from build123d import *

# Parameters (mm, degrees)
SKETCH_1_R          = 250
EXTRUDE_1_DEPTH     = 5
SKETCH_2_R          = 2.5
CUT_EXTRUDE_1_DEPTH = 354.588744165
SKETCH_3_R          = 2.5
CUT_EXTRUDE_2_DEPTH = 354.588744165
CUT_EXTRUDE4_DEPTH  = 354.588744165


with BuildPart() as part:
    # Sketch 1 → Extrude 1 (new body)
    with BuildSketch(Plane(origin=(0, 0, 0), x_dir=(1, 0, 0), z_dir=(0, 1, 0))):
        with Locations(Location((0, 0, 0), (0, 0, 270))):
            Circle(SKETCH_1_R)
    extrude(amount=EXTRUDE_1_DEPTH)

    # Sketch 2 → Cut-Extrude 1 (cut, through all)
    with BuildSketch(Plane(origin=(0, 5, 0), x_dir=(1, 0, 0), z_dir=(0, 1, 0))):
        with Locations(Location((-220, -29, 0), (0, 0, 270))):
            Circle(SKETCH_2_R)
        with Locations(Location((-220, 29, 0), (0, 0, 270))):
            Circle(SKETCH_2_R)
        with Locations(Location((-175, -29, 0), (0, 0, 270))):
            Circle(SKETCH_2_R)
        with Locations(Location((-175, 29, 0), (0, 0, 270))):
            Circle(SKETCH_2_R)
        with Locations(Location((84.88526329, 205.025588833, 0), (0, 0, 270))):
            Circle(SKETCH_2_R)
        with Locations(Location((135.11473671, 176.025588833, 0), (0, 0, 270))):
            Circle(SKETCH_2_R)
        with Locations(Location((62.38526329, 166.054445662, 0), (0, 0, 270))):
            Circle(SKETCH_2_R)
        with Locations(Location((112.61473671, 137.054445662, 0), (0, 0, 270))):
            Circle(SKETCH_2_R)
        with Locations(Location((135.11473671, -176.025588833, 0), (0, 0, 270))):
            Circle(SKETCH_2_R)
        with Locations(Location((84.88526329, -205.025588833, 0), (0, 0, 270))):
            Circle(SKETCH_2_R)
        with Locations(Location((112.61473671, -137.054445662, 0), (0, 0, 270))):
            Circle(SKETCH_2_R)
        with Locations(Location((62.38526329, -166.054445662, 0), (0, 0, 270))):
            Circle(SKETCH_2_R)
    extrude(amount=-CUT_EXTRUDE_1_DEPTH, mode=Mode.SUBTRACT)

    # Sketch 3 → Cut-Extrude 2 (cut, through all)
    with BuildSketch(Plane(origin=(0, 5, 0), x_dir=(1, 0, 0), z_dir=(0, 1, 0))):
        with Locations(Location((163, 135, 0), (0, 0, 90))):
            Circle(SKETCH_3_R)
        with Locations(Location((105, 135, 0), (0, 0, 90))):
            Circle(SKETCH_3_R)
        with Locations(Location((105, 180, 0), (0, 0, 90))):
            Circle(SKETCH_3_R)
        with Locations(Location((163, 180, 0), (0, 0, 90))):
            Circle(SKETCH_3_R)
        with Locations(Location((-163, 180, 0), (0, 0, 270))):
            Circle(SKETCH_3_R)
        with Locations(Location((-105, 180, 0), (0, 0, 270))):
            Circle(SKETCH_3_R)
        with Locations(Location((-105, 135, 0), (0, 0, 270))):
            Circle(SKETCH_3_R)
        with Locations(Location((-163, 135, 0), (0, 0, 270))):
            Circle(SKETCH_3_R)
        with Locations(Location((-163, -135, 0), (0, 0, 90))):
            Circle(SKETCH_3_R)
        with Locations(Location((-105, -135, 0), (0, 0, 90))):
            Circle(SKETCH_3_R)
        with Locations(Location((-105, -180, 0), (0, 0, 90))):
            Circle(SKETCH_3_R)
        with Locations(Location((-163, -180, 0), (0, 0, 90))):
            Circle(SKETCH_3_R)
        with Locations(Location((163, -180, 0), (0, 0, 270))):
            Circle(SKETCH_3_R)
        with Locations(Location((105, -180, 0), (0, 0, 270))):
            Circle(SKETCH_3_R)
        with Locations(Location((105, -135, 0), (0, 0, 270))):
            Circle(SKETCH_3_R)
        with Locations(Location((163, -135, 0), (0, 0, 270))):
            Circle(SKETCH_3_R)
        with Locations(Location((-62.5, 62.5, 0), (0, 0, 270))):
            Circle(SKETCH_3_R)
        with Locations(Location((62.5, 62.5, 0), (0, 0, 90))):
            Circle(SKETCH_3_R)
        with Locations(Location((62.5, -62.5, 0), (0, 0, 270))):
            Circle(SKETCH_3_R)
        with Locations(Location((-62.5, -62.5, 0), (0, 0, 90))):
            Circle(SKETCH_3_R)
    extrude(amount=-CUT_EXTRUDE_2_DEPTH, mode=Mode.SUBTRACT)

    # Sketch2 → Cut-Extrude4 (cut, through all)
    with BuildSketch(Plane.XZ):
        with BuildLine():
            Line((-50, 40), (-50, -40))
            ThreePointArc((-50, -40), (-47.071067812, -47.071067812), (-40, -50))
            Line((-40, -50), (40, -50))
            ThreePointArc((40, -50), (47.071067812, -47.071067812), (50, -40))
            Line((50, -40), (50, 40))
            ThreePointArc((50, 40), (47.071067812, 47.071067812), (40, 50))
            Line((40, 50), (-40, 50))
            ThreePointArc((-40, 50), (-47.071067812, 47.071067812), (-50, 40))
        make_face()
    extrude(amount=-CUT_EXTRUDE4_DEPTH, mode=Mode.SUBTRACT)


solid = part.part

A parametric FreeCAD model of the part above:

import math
import FreeCAD as App
import Part
import Sketcher

V = App.Vector

doc = App.newDocument("Part")
params = doc.addObject("Spreadsheet::Sheet", "Params")
for row, (alias, value) in enumerate([
    ("sketch1_diameter", "500 mm"),
    ("pad1_length", "5 mm"),
    ("sketch2_diameter", "5 mm"),
    ("sketch3_diameter", "5 mm"),
    ("sketch4_radius", "10 mm"),
    ("sketch4_width", "80 mm"),
], start=1):
    params.set(f"A{row}", alias)
    params.set(f"B{row}", "=" + value)
    params.setAlias(f"B{row}", alias)

body = doc.addObject("PartDesign::Body", "Body")

sketch1 = body.newObject("Sketcher::SketchObject", "Sketch")
sketch1.AttachmentSupport = (doc.getObject("XZ_Plane"), [""])
sketch1.MapMode = "FlatFace"
sketch1.addGeometry(Part.Circle(V(0, 0, 0), V(0, 0, 1), 250), False)
sketch1.addConstraint(Sketcher.Constraint("Coincident", 0, 3, -1, 1))
sketch1.addConstraint(Sketcher.Constraint("Diameter", 0, 500.0))
sketch1.setExpression("Constraints[1]", "Params.sketch1_diameter")
pad1 = body.newObject("PartDesign::Pad", "Pad")
pad1.Profile = sketch1
pad1.setExpression("Length", "Params.pad1_length")
pad1.Reversed = True

sketch2 = body.newObject("Sketcher::SketchObject", "Sketch001")
sketch2.AttachmentSupport = (doc.getObject("XZ_Plane"), [""])
sketch2.MapMode = "FlatFace"
sketch2.AttachmentOffset = App.Placement(V(0, 0, -5), App.Rotation())
sketch2.addGeometry(Part.Circle(V(-220, 29, 0), V(0, 0, 1), 2.5), False)
sketch2.addGeometry(Part.Circle(V(-220, -29, 0), V(0, 0, 1), 2.5), False)
sketch2.addGeometry(Part.Circle(V(-175, 29, 0), V(0, 0, 1), 2.5), False)
sketch2.addGeometry(Part.Circle(V(-175, -29, 0), V(0, 0, 1), 2.5), False)
sketch2.addGeometry(Part.Circle(V(84.885263, -205.025589, 0), V(0, 0, 1), 2.5), False)
sketch2.addGeometry(Part.Circle(V(135.114737, -176.025589, 0), V(0, 0, 1), 2.5), False)
sketch2.addGeometry(Part.Circle(V(62.385263, -166.054446, 0), V(0, 0, 1), 2.5), False)
sketch2.addGeometry(Part.Circle(V(112.614737, -137.054446, 0), V(0, 0, 1), 2.5), False)
sketch2.addGeometry(Part.Circle(V(135.114737, 176.025589, 0), V(0, 0, 1), 2.5), False)
sketch2.addGeometry(Part.Circle(V(84.885263, 205.025589, 0), V(0, 0, 1), 2.5), False)
sketch2.addGeometry(Part.Circle(V(112.614737, 137.054446, 0), V(0, 0, 1), 2.5), False)
sketch2.addGeometry(Part.Circle(V(62.385263, 166.054446, 0), V(0, 0, 1), 2.5), False)
sketch2.addConstraint(Sketcher.Constraint("Equal", 0, 1))
sketch2.addConstraint(Sketcher.Constraint("Equal", 1, 2))
sketch2.addConstraint(Sketcher.Constraint("Equal", 2, 3))
sketch2.addConstraint(Sketcher.Constraint("Equal", 3, 4))
sketch2.addConstraint(Sketcher.Constraint("Equal", 4, 5))
sketch2.addConstraint(Sketcher.Constraint("Equal", 5, 6))
sketch2.addConstraint(Sketcher.Constraint("Equal", 6, 7))
sketch2.addConstraint(Sketcher.Constraint("Equal", 7, 8))
sketch2.addConstraint(Sketcher.Constraint("Equal", 8, 9))
sketch2.addConstraint(Sketcher.Constraint("Equal", 9, 10))
sketch2.addConstraint(Sketcher.Constraint("Equal", 10, 11))
sketch2.addConstraint(Sketcher.Constraint("Symmetric", 0, 3, 1, 3, -1))
sketch2.addConstraint(Sketcher.Constraint("Symmetric", 2, 3, 3, 3, -1))
sketch2.addConstraint(Sketcher.Constraint("Symmetric", 5, 3, 8, 3, -1))
sketch2.addConstraint(Sketcher.Constraint("Symmetric", 4, 3, 9, 3, -1))
sketch2.addConstraint(Sketcher.Constraint("Symmetric", 7, 3, 10, 3, -1))
sketch2.addConstraint(Sketcher.Constraint("Symmetric", 6, 3, 11, 3, -1))
sketch2.addConstraint(Sketcher.Constraint("Horizontal", 0, 3, 2, 3))
sketch2.addConstraint(Sketcher.Constraint("Diameter", 0, 5.0))
sketch2.addConstraint(Sketcher.Constraint("DistanceX", 0, 3, -1, 1, 220.0))
sketch2.addConstraint(Sketcher.Constraint("DistanceY", -1, 1, 0, 3, 29.0))
sketch2.addConstraint(Sketcher.Constraint("DistanceX", 2, 3, -1, 1, 175.0))
sketch2.addConstraint(Sketcher.Constraint("DistanceY", 4, 3, 5, 3, 29.0))
sketch2.addConstraint(Sketcher.Constraint("DistanceY", 6, 3, 7, 3, 29.0))
sketch2.addConstraint(Sketcher.Constraint("DistanceX", 6, 3, 4, 3, 22.5))
sketch2.addConstraint(Sketcher.Constraint("DistanceX", 7, 3, 5, 3, 22.5))
sketch2.addConstraint(Sketcher.Constraint("DistanceY", 4, 3, -1, 1, 205.025589))
sketch2.addConstraint(Sketcher.Constraint("DistanceY", 7, 3, 10, 3, 274.108891))
sketch2.addConstraint(Sketcher.Constraint("DistanceX", -1, 1, 4, 3, 84.885263))
sketch2.addConstraint(Sketcher.Constraint("DistanceX", -1, 1, 5, 3, 135.114737))
sketch2.setExpression("Constraints[18]", "Params.sketch2_diameter")
pocket1 = body.newObject("PartDesign::Pocket", "Pocket")
pocket1.Profile = sketch2
pocket1.Type = "ThroughAll"
pocket1.Reversed = True

sketch3 = body.newObject("Sketcher::SketchObject", "Sketch002")
sketch3.AttachmentSupport = (doc.getObject("XZ_Plane"), [""])
sketch3.MapMode = "FlatFace"
sketch3.AttachmentOffset = App.Placement(V(0, 0, -5), App.Rotation())
sketch3.addGeometry(Part.Circle(V(163, -135, 0), V(0, 0, 1), 2.5), False)
sketch3.addGeometry(Part.Circle(V(105, -135, 0), V(0, 0, 1), 2.5), False)
sketch3.addGeometry(Part.Circle(V(105, -180, 0), V(0, 0, 1), 2.5), False)
sketch3.addGeometry(Part.Circle(V(163, -180, 0), V(0, 0, 1), 2.5), False)
sketch3.addGeometry(Part.Circle(V(-163, -180, 0), V(0, 0, 1), 2.5), False)
sketch3.addGeometry(Part.Circle(V(-105, -180, 0), V(0, 0, 1), 2.5), False)
sketch3.addGeometry(Part.Circle(V(-105, -135, 0), V(0, 0, 1), 2.5), False)
sketch3.addGeometry(Part.Circle(V(-163, -135, 0), V(0, 0, 1), 2.5), False)
sketch3.addGeometry(Part.Circle(V(-163, 135, 0), V(0, 0, 1), 2.5), False)
sketch3.addGeometry(Part.Circle(V(-105, 135, 0), V(0, 0, 1), 2.5), False)
sketch3.addGeometry(Part.Circle(V(-105, 180, 0), V(0, 0, 1), 2.5), False)
sketch3.addGeometry(Part.Circle(V(-163, 180, 0), V(0, 0, 1), 2.5), False)
sketch3.addGeometry(Part.Circle(V(163, 180, 0), V(0, 0, 1), 2.5), False)
sketch3.addGeometry(Part.Circle(V(105, 180, 0), V(0, 0, 1), 2.5), False)
sketch3.addGeometry(Part.Circle(V(105, 135, 0), V(0, 0, 1), 2.5), False)
sketch3.addGeometry(Part.Circle(V(163, 135, 0), V(0, 0, 1), 2.5), False)
sketch3.addGeometry(Part.Circle(V(-62.5, -62.5, 0), V(0, 0, 1), 2.5), False)
sketch3.addGeometry(Part.Circle(V(62.5, -62.5, 0), V(0, 0, 1), 2.5), False)
sketch3.addGeometry(Part.Circle(V(62.5, 62.5, 0), V(0, 0, 1), 2.5), False)
sketch3.addGeometry(Part.Circle(V(-62.5, 62.5, 0), V(0, 0, 1), 2.5), False)
sketch3.addConstraint(Sketcher.Constraint("Equal", 0, 1))
sketch3.addConstraint(Sketcher.Constraint("Equal", 1, 2))
sketch3.addConstraint(Sketcher.Constraint("Equal", 2, 3))
sketch3.addConstraint(Sketcher.Constraint("Equal", 3, 4))
sketch3.addConstraint(Sketcher.Constraint("Equal", 4, 5))
sketch3.addConstraint(Sketcher.Constraint("Equal", 5, 6))
sketch3.addConstraint(Sketcher.Constraint("Equal", 6, 7))
sketch3.addConstraint(Sketcher.Constraint("Equal", 7, 8))
sketch3.addConstraint(Sketcher.Constraint("Equal", 8, 9))
sketch3.addConstraint(Sketcher.Constraint("Equal", 9, 10))
sketch3.addConstraint(Sketcher.Constraint("Equal", 10, 11))
sketch3.addConstraint(Sketcher.Constraint("Equal", 11, 12))
sketch3.addConstraint(Sketcher.Constraint("Equal", 12, 13))
sketch3.addConstraint(Sketcher.Constraint("Equal", 13, 14))
sketch3.addConstraint(Sketcher.Constraint("Equal", 14, 15))
sketch3.addConstraint(Sketcher.Constraint("Equal", 15, 16))
sketch3.addConstraint(Sketcher.Constraint("Equal", 16, 17))
sketch3.addConstraint(Sketcher.Constraint("Equal", 17, 18))
sketch3.addConstraint(Sketcher.Constraint("Equal", 18, 19))
sketch3.addConstraint(Sketcher.Constraint("Symmetric", 0, 3, 8, 3, -1, 1))
sketch3.addConstraint(Sketcher.Constraint("Symmetric", 1, 3, 9, 3, -1, 1))
sketch3.addConstraint(Sketcher.Constraint("Symmetric", 2, 3, 10, 3, -1, 1))
sketch3.addConstraint(Sketcher.Constraint("Symmetric", 3, 3, 11, 3, -1, 1))
sketch3.addConstraint(Sketcher.Constraint("Symmetric", 4, 3, 12, 3, -1, 1))
sketch3.addConstraint(Sketcher.Constraint("Symmetric", 5, 3, 13, 3, -1, 1))
sketch3.addConstraint(Sketcher.Constraint("Symmetric", 6, 3, 14, 3, -1, 1))
sketch3.addConstraint(Sketcher.Constraint("Symmetric", 7, 3, 15, 3, -1, 1))
sketch3.addConstraint(Sketcher.Constraint("Symmetric", 16, 3, 18, 3, -1, 1))
sketch3.addConstraint(Sketcher.Constraint("Symmetric", 17, 3, 19, 3, -1, 1))
sketch3.addConstraint(Sketcher.Constraint("Symmetric", 3, 3, 4, 3, -2))
sketch3.addConstraint(Sketcher.Constraint("Symmetric", 2, 3, 5, 3, -2))
sketch3.addConstraint(Sketcher.Constraint("Symmetric", 1, 3, 6, 3, -2))
sketch3.addConstraint(Sketcher.Constraint("Symmetric", 0, 3, 7, 3, -2))
sketch3.addConstraint(Sketcher.Constraint("Symmetric", 16, 3, 17, 3, -2))
sketch3.addConstraint(Sketcher.Constraint("Horizontal", 0, 3, 1, 3))
sketch3.addConstraint(Sketcher.Constraint("Horizontal", 2, 3, 3, 3))
sketch3.addConstraint(Sketcher.Constraint("Vertical", 1, 3, 2, 3))
sketch3.addConstraint(Sketcher.Constraint("Vertical", 0, 3, 3, 3))
sketch3.addConstraint(Sketcher.Constraint("Diameter", 0, 5.0))
sketch3.addConstraint(Sketcher.Constraint("DistanceX", -1, 1, 0, 3, 163.0))
sketch3.addConstraint(Sketcher.Constraint("DistanceY", 0, 3, -1, 1, 135.0))
sketch3.addConstraint(Sketcher.Constraint("DistanceX", -1, 1, 1, 3, 105.0))
sketch3.addConstraint(Sketcher.Constraint("DistanceY", 2, 3, -1, 1, 180.0))
sketch3.addConstraint(Sketcher.Constraint("DistanceX", 16, 3, 17, 3, 125.0))
sketch3.addConstraint(Sketcher.Constraint("DistanceY", 17, 3, 18, 3, 125.0))
sketch3.setExpression("Constraints[38]", "Params.sketch3_diameter")
pocket2 = body.newObject("PartDesign::Pocket", "Pocket001")
pocket2.Profile = sketch3
pocket2.Type = "ThroughAll"
pocket2.Reversed = True

sketch4 = body.newObject("Sketcher::SketchObject", "Sketch003")
sketch4.AttachmentSupport = (doc.getObject("XZ_Plane"), [""])
sketch4.MapMode = "FlatFace"
sketch4.addGeometry(Part.LineSegment(V(-50, 40, 0), V(-50, -40, 0)), False)
sketch4.addGeometry(Part.ArcOfCircle(Part.Circle(V(-40, -40, 0), V(0, 0, 1), 10), math.radians(180), math.radians(270)), False)
sketch4.addGeometry(Part.LineSegment(V(-40, -50, 0), V(40, -50, 0)), False)
sketch4.addGeometry(Part.ArcOfCircle(Part.Circle(V(40, -40, 0), V(0, 0, 1), 10), math.radians(-90), math.radians(0)), False)
sketch4.addGeometry(Part.LineSegment(V(50, -40, 0), V(50, 40, 0)), False)
sketch4.addGeometry(Part.ArcOfCircle(Part.Circle(V(40, 40, 0), V(0, 0, 1), 10), math.radians(0), math.radians(90)), False)
sketch4.addGeometry(Part.LineSegment(V(40, 50, 0), V(-40, 50, 0)), False)
sketch4.addGeometry(Part.ArcOfCircle(Part.Circle(V(-40, 40, 0), V(0, 0, 1), 10), math.radians(90), math.radians(180)), False)
sketch4.addConstraint(Sketcher.Constraint("Tangent", 0, 2, 1, 1))
sketch4.addConstraint(Sketcher.Constraint("Tangent", 1, 2, 2, 1))
sketch4.addConstraint(Sketcher.Constraint("Tangent", 2, 2, 3, 1))
sketch4.addConstraint(Sketcher.Constraint("Tangent", 3, 2, 4, 1))
sketch4.addConstraint(Sketcher.Constraint("Tangent", 4, 2, 5, 1))
sketch4.addConstraint(Sketcher.Constraint("Tangent", 5, 2, 6, 1))
sketch4.addConstraint(Sketcher.Constraint("Tangent", 6, 2, 7, 1))
sketch4.addConstraint(Sketcher.Constraint("Tangent", 7, 2, 0, 1))
sketch4.addConstraint(Sketcher.Constraint("Vertical", 0))
sketch4.addConstraint(Sketcher.Constraint("Horizontal", 2))
sketch4.addConstraint(Sketcher.Constraint("Vertical", 4))
sketch4.addConstraint(Sketcher.Constraint("Horizontal", 6))
sketch4.addConstraint(Sketcher.Constraint("Equal", 1, 3))
sketch4.addConstraint(Sketcher.Constraint("Equal", 3, 5))
sketch4.addConstraint(Sketcher.Constraint("Equal", 5, 7))
sketch4.addConstraint(Sketcher.Constraint("Symmetric", 1, 3, 5, 3, -1, 1))
sketch4.addConstraint(Sketcher.Constraint("Equal", 6, 0))
sketch4.addConstraint(Sketcher.Constraint("Radius", 1, 10.0))
sketch4.addConstraint(Sketcher.Constraint("DistanceX", 2, 1, 2, 2, 80.0))
sketch4.setExpression("Constraints[17]", "Params.sketch4_radius")
sketch4.setExpression("Constraints[18]", "Params.sketch4_width")
pocket3 = body.newObject("PartDesign::Pocket", "Pocket002")
pocket3.Profile = sketch4
pocket3.Type = "ThroughAll"

doc.recompute()
